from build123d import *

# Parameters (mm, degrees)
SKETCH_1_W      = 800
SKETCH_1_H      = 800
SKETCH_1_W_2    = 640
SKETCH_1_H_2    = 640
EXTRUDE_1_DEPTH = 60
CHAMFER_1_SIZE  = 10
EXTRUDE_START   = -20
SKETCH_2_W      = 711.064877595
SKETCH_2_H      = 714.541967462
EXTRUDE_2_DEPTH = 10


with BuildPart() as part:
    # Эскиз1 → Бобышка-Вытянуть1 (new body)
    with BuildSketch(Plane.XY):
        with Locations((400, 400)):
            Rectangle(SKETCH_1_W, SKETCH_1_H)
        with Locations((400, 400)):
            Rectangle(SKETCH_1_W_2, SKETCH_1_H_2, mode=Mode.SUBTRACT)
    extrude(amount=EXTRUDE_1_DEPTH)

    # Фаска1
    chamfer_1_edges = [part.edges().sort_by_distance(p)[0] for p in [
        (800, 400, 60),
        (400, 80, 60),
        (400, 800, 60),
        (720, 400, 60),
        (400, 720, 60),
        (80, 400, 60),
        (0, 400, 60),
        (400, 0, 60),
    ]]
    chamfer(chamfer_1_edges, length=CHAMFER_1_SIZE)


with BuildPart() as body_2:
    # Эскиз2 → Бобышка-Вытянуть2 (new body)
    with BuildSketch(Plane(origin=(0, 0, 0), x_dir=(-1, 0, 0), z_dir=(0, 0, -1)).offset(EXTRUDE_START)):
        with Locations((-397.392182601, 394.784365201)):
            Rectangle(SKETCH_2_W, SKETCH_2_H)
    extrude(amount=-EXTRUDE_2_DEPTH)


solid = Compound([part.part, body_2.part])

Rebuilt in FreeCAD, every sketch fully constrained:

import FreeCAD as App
import Part
import Sketcher

V = App.Vector
Q = App.Units.Quantity


def edges_at(feature, points):
    """Names of the edges that pass closest to the given points."""
    edges = feature.Shape.Edges
    near = lambda p: min(range(len(edges)), key=lambda i: edges[i].distToShape(Part.Vertex(*p))[0])
    return sorted({f"Edge{near(p) + 1}" for p in points})

doc = App.newDocument("Part")
params = doc.addObject("Spreadsheet::Sheet", "Params")
for row, (alias, value) in enumerate([
    ("sketch1_width", "800 mm"),
    ("sketch1_width2", "640 mm"),
    ("pad1_length", "60 mm"),
    ("chamfer_size", "10 mm"),
    ("pad2_length", "10 mm"),
], start=1):
    params.set(f"A{row}", alias)
    params.set(f"B{row}", "=" + value)
    params.setAlias(f"B{row}", alias)

body = doc.addObject("PartDesign::Body", "Body")

# Sketch on XY plane
sketch1 = body.newObject("Sketcher::SketchObject", "Sketch")
sketch1.AttachmentSupport = (doc.getObject("XY_Plane"), [""])
sketch1.MapMode = "FlatFace"
sketch1.addGeometry(Part.LineSegment(V(0, 800, 0), V(0, 0, 0)), False)
sketch1.addGeometry(Part.LineSegment(V(0, 0, 0), V(800, 0, 0)), False)
sketch1.addGeometry(Part.LineSegment(V(800, 0, 0), V(800, 800, 0)), False)
sketch1.addGeometry(Part.LineSegment(V(800, 800, 0), V(0, 800, 0)), False)
sketch1.addGeometry(Part.LineSegment(V(720, 80, 0), V(80, 80, 0)), False)
sketch1.addGeometry(Part.LineSegment(V(80, 80, 0), V(80, 720, 0)), False)
sketch1.addGeometry(Part.LineSegment(V(80, 720, 0), V(720, 720, 0)), False)
sketch1.addGeometry(Part.LineSegment(V(720, 720, 0), V(720, 80, 0)), False)
sketch1.addConstraint(Sketcher.Constraint("Coincident", 0, 2, 1, 1))
sketch1.addConstraint(Sketcher.Constraint("Coincident", 1, 2, 2, 1))
sketch1.addConstraint(Sketcher.Constraint("Coincident", 2, 2, 3, 1))
sketch1.addConstraint(Sketcher.Constraint("Coincident", 3, 2, 0, 1))
sketch1.addConstraint(Sketcher.Constraint("Coincident", 4, 2, 5, 1))
sketch1.addConstraint(Sketcher.Constraint("Coincident", 5, 2, 6, 1))
sketch1.addConstraint(Sketcher.Constraint("Coincident", 6, 2, 7, 1))
sketch1.addConstraint(Sketcher.Constraint("Coincident", 7, 2, 4, 1))
sketch1.addConstraint(Sketcher.Constraint("Vertical", 0))
sketch1.addConstraint(Sketcher.Constraint("Horizontal", 1))
sketch1.addConstraint(Sketcher.Constraint("Vertical", 2))
sketch1.addConstraint(Sketcher.Constraint("Horizontal", 3))
sketch1.addConstraint(Sketcher.Constraint("Horizontal", 4))
sketch1.addConstraint(Sketcher.Constraint("Vertical", 5))
sketch1.addConstraint(Sketcher.Constraint("Horizontal", 6))
sketch1.addConstraint(Sketcher.Constraint("Vertical", 7))
sketch1.addConstraint(Sketcher.Constraint("Coincident", 0, 2, -1, 1))
sketch1.addConstraint(Sketcher.Constraint("Equal", 3, 0))
sketch1.addConstraint(Sketcher.Constraint("Equal", 6, 5))
sketch1.addConstraint(Sketcher.Constraint("DistanceX", 1, 1, 1, 2, Q("800 mm")))
sketch1.addConstraint(Sketcher.Constraint("DistanceX", 4, 2, 4, 1, Q("640 mm")))
sketch1.addConstraint(Sketcher.Constraint("DistanceX", -1, 1, 4, 2, Q("80 mm")))
sketch1.addConstraint(Sketcher.Constraint("DistanceY", -1, 1, 4, 2, Q("80 mm")))
sketch1.setExpression("Constraints[19]", "Params.sketch1_width")
sketch1.setExpression("Constraints[20]", "Params.sketch1_width2")
pad1 = body.newObject("PartDesign::Pad", "Pad")
pad1.Profile = sketch1
pad1.setExpression("Length", "Params.pad1_length")
doc.recompute()

chamfer = body.newObject("PartDesign::Chamfer", "Chamfer")
chamfer.Base = (pad1, edges_at(pad1, [
    (800, 400, 60),
    (400, 80, 60),
    (400, 800, 60),
    (720, 400, 60),
    (400, 720, 60),
    (80, 400, 60),
    (0, 400, 60),
    (400, 0, 60),
]))
chamfer.setExpression("Size", "Params.chamfer_size")
body2 = doc.addObject("PartDesign::Body", "Body001")

# Sketch on XY plane
sketch2 = body2.newObject("Sketcher::SketchObject", "Sketch001")
sketch2.AttachmentSupport = (doc.getObject("XY_Plane001"), [""])
sketch2.MapMode = "FlatFace"
sketch2.AttachmentOffset = App.Placement(V(0, 0, 20), App.Rotation())
sketch2.addGeometry(Part.LineSegment(V(753, 752, 0), V(753, 38, 0)), False)
sketch2.addGeometry(Part.LineSegment(V(753, 38, 0), V(42, 38, 0)), False)
sketch2.addGeometry(Part.LineSegment(V(42, 38, 0), V(42, 752, 0)), False)
sketch2.addGeometry(Part.LineSegment(V(42, 752, 0), V(753, 752, 0)), False)
sketch2.addConstraint(Sketcher.Constraint("Coincident", 0, 2, 1, 1))
sketch2.addConstraint(Sketcher.Constraint("Coincident", 1, 2, 2, 1))
sketch2.addConstraint(Sketcher.Constraint("Coincident", 2, 2, 3, 1))
sketch2.addConstraint(Sketcher.Constraint("Coincident", 3, 2, 0, 1))
sketch2.addConstraint(Sketcher.Constraint("Vertical", 0))
sketch2.addConstraint(Sketcher.Constraint("Horizontal", 1))
sketch2.addConstraint(Sketcher.Constraint("Vertical", 2))
sketch2.addConstraint(Sketcher.Constraint("Horizontal", 3))
sketch2.addConstraint(Sketcher.Constraint("DistanceX", 1, 2, 1, 1, Q("711.064878 mm")))
sketch2.addConstraint(Sketcher.Constraint("DistanceY", 0, 2, 0, 1, Q("714.541967 mm")))
sketch2.addConstraint(Sketcher.Constraint("DistanceX", -1, 1, 0, 2, Q("752.924621 mm")))
sketch2.addConstraint(Sketcher.Constraint("DistanceY", -1, 1, 0, 2, Q("37.513381 mm")))
pad2 = body2.newObject("PartDesign::Pad", "Pad001")
pad2.Profile = sketch2
pad2.setExpression("Length", "Params.pad2_length")

doc.recompute()
